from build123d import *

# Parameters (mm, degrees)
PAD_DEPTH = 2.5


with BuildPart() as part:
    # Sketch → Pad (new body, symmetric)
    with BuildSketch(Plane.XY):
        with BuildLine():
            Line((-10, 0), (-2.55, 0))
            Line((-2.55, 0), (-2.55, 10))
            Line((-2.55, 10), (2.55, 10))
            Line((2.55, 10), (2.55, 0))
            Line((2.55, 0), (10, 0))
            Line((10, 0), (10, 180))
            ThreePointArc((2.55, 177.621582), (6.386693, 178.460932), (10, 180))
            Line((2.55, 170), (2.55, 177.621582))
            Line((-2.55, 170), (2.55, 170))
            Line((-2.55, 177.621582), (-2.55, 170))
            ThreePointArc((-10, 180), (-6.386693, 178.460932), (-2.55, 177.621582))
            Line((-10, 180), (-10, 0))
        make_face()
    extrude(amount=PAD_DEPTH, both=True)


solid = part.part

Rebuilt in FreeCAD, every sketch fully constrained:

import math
import FreeCAD as App
import Part
import Sketcher
from FreeCAD import Vector
Q = App.Units.Quantity

doc = App.newDocument("Part")
params = doc.addObject("Spreadsheet::Sheet", "Params")
for row, (alias, value) in enumerate([
    ("sketch1_height", "10 mm"),
    ("sketch1_height2", "180 mm"),
    ("sketch1_width", "5.1 mm"),
    ("pad1_length", "5 mm"),
], start=1):
    params.set(f"A{row}", alias)
    params.set(f"B{row}", "=" + value)
    params.setAlias(f"B{row}", alias)

body = doc.addObject("PartDesign::Body", "Body")

# Sketch on XY plane
sketch1 = body.newObject("Sketcher::SketchObject", "Sketch")
sketch1.AttachmentSupport = (doc.getObject("XY_Plane"), [""])
sketch1.MapMode = "FlatFace"
sketch1.addGeometry([
    Part.LineSegment(Vector(-10, 0, 0), Vector(-2.55, 0, 0)),  # 0
    Part.LineSegment(Vector(-2.55, 0, 0), Vector(-2.55, 10, 0)),  # 1
    Part.LineSegment(Vector(-2.55, 10, 0), Vector(2.55, 10, 0)),  # 2
    Part.LineSegment(Vector(2.55, 10, 0), Vector(2.55, 0, 0)),  # 3
    Part.LineSegment(Vector(2.55, 0, 0), Vector(10, 0, 0)),  # 4
    Part.LineSegment(Vector(10, 0, 0), Vector(10, 180, 0)),  # 5
    Part.ArcOfCircle(Part.Circle(Vector(0.000007, 198.466167, 0), Vector(0, 0, 1), 20.999981), math.radians(-83.025455), math.radians(-61.563102)),  # 6
    Part.LineSegment(Vector(2.55, 177.621582, 0), Vector(2.55, 170, 0)),  # 7
    Part.LineSegment(Vector(2.55, 170, 0), Vector(-2.55, 170, 0)),  # 8
    Part.LineSegment(Vector(-2.55, 170, 0), Vector(-2.55, 177.621582, 0)),  # 9
    Part.ArcOfCircle(Part.Circle(Vector(-0.000007, 198.466167, 0), Vector(0, 0, 1), 20.999981), math.radians(-118.436898), math.radians(-96.974545)),  # 10
    Part.LineSegment(Vector(-10, 180, 0), Vector(-10, 0, 0)),  # 11
], False)
sketch1.addConstraint([
    Sketcher.Constraint("Coincident", 0, 2, 1, 1),
    Sketcher.Constraint("Coincident", 1, 2, 2, 1),
    Sketcher.Constraint("Coincident", 2, 2, 3, 1),
    Sketcher.Constraint("Coincident", 3, 2, 4, 1),
    Sketcher.Constraint("Coincident", 4, 2, 5, 1),
    Sketcher.Constraint("Coincident", 5, 2, 6, 2),
    Sketcher.Constraint("Coincident", 6, 1, 7, 1),
    Sketcher.Constraint("Coincident", 7, 2, 8, 1),
    Sketcher.Constraint("Coincident", 8, 2, 9, 1),
    Sketcher.Constraint("Coincident", 9, 2, 10, 2),
    Sketcher.Constraint("Coincident", 10, 1, 11, 1),
    Sketcher.Constraint("Coincident", 11, 2, 0, 1),
    Sketcher.Constraint("Horizontal", 0),
    Sketcher.Constraint("Vertical", 1),
    Sketcher.Constraint("Horizontal", 2),
    Sketcher.Constraint("Vertical", 3),
    Sketcher.Constraint("Horizontal", 4),
    Sketcher.Constraint("Vertical", 5),
    Sketcher.Constraint("Vertical", 7),
    Sketcher.Constraint("Horizontal", 8),
    Sketcher.Constraint("Vertical", 9),
    Sketcher.Constraint("Vertical", 11),
    Sketcher.Constraint("Equal", 6, 10),
    Sketcher.Constraint("Symmetric", 0, 2, 3, 2, -1, 1),
    Sketcher.Constraint("Symmetric", 6, 3, 10, 3, -2),
    Sketcher.Constraint("Symmetric", 4, 2, 11, 2, -2),
    Sketcher.Constraint("Horizontal", 6, 1, 9, 2),
    Sketcher.Constraint("Vertical", 3, 2, 6, 1),
    Sketcher.Constraint("DistanceY", 1, 1, 1, 2, Q("10 mm")),
    Sketcher.Constraint("DistanceY", 5, 1, 5, 2, Q("180 mm")),
    Sketcher.Constraint("DistanceX", 2, 1, 2, 2, Q("5.1 mm")),
    Sketcher.Constraint("DistanceX", -1, 1, 4, 2, Q("10 mm")),
    Sketcher.Constraint("DistanceY", -1, 1, 7, 2, Q("170 mm")),
    Sketcher.Constraint("Radius", 6, Q("20.999981 mm")),
    Sketcher.Constraint("DistanceY", 7, 2, 7, 1, Q("7.621582 mm")),
])
sketch1.setExpression("Constraints[28]", "Params.sketch1_height")
sketch1.setExpression("Constraints[29]", "Params.sketch1_height2")
sketch1.setExpression("Constraints[30]", "Params.sketch1_width")
pad1 = body.newObject("PartDesign::Pad", "Pad")
pad1.Profile = sketch1
pad1.setExpression("Length", "Params.pad1_length")
pad1.Midplane = True

doc.recompute()
